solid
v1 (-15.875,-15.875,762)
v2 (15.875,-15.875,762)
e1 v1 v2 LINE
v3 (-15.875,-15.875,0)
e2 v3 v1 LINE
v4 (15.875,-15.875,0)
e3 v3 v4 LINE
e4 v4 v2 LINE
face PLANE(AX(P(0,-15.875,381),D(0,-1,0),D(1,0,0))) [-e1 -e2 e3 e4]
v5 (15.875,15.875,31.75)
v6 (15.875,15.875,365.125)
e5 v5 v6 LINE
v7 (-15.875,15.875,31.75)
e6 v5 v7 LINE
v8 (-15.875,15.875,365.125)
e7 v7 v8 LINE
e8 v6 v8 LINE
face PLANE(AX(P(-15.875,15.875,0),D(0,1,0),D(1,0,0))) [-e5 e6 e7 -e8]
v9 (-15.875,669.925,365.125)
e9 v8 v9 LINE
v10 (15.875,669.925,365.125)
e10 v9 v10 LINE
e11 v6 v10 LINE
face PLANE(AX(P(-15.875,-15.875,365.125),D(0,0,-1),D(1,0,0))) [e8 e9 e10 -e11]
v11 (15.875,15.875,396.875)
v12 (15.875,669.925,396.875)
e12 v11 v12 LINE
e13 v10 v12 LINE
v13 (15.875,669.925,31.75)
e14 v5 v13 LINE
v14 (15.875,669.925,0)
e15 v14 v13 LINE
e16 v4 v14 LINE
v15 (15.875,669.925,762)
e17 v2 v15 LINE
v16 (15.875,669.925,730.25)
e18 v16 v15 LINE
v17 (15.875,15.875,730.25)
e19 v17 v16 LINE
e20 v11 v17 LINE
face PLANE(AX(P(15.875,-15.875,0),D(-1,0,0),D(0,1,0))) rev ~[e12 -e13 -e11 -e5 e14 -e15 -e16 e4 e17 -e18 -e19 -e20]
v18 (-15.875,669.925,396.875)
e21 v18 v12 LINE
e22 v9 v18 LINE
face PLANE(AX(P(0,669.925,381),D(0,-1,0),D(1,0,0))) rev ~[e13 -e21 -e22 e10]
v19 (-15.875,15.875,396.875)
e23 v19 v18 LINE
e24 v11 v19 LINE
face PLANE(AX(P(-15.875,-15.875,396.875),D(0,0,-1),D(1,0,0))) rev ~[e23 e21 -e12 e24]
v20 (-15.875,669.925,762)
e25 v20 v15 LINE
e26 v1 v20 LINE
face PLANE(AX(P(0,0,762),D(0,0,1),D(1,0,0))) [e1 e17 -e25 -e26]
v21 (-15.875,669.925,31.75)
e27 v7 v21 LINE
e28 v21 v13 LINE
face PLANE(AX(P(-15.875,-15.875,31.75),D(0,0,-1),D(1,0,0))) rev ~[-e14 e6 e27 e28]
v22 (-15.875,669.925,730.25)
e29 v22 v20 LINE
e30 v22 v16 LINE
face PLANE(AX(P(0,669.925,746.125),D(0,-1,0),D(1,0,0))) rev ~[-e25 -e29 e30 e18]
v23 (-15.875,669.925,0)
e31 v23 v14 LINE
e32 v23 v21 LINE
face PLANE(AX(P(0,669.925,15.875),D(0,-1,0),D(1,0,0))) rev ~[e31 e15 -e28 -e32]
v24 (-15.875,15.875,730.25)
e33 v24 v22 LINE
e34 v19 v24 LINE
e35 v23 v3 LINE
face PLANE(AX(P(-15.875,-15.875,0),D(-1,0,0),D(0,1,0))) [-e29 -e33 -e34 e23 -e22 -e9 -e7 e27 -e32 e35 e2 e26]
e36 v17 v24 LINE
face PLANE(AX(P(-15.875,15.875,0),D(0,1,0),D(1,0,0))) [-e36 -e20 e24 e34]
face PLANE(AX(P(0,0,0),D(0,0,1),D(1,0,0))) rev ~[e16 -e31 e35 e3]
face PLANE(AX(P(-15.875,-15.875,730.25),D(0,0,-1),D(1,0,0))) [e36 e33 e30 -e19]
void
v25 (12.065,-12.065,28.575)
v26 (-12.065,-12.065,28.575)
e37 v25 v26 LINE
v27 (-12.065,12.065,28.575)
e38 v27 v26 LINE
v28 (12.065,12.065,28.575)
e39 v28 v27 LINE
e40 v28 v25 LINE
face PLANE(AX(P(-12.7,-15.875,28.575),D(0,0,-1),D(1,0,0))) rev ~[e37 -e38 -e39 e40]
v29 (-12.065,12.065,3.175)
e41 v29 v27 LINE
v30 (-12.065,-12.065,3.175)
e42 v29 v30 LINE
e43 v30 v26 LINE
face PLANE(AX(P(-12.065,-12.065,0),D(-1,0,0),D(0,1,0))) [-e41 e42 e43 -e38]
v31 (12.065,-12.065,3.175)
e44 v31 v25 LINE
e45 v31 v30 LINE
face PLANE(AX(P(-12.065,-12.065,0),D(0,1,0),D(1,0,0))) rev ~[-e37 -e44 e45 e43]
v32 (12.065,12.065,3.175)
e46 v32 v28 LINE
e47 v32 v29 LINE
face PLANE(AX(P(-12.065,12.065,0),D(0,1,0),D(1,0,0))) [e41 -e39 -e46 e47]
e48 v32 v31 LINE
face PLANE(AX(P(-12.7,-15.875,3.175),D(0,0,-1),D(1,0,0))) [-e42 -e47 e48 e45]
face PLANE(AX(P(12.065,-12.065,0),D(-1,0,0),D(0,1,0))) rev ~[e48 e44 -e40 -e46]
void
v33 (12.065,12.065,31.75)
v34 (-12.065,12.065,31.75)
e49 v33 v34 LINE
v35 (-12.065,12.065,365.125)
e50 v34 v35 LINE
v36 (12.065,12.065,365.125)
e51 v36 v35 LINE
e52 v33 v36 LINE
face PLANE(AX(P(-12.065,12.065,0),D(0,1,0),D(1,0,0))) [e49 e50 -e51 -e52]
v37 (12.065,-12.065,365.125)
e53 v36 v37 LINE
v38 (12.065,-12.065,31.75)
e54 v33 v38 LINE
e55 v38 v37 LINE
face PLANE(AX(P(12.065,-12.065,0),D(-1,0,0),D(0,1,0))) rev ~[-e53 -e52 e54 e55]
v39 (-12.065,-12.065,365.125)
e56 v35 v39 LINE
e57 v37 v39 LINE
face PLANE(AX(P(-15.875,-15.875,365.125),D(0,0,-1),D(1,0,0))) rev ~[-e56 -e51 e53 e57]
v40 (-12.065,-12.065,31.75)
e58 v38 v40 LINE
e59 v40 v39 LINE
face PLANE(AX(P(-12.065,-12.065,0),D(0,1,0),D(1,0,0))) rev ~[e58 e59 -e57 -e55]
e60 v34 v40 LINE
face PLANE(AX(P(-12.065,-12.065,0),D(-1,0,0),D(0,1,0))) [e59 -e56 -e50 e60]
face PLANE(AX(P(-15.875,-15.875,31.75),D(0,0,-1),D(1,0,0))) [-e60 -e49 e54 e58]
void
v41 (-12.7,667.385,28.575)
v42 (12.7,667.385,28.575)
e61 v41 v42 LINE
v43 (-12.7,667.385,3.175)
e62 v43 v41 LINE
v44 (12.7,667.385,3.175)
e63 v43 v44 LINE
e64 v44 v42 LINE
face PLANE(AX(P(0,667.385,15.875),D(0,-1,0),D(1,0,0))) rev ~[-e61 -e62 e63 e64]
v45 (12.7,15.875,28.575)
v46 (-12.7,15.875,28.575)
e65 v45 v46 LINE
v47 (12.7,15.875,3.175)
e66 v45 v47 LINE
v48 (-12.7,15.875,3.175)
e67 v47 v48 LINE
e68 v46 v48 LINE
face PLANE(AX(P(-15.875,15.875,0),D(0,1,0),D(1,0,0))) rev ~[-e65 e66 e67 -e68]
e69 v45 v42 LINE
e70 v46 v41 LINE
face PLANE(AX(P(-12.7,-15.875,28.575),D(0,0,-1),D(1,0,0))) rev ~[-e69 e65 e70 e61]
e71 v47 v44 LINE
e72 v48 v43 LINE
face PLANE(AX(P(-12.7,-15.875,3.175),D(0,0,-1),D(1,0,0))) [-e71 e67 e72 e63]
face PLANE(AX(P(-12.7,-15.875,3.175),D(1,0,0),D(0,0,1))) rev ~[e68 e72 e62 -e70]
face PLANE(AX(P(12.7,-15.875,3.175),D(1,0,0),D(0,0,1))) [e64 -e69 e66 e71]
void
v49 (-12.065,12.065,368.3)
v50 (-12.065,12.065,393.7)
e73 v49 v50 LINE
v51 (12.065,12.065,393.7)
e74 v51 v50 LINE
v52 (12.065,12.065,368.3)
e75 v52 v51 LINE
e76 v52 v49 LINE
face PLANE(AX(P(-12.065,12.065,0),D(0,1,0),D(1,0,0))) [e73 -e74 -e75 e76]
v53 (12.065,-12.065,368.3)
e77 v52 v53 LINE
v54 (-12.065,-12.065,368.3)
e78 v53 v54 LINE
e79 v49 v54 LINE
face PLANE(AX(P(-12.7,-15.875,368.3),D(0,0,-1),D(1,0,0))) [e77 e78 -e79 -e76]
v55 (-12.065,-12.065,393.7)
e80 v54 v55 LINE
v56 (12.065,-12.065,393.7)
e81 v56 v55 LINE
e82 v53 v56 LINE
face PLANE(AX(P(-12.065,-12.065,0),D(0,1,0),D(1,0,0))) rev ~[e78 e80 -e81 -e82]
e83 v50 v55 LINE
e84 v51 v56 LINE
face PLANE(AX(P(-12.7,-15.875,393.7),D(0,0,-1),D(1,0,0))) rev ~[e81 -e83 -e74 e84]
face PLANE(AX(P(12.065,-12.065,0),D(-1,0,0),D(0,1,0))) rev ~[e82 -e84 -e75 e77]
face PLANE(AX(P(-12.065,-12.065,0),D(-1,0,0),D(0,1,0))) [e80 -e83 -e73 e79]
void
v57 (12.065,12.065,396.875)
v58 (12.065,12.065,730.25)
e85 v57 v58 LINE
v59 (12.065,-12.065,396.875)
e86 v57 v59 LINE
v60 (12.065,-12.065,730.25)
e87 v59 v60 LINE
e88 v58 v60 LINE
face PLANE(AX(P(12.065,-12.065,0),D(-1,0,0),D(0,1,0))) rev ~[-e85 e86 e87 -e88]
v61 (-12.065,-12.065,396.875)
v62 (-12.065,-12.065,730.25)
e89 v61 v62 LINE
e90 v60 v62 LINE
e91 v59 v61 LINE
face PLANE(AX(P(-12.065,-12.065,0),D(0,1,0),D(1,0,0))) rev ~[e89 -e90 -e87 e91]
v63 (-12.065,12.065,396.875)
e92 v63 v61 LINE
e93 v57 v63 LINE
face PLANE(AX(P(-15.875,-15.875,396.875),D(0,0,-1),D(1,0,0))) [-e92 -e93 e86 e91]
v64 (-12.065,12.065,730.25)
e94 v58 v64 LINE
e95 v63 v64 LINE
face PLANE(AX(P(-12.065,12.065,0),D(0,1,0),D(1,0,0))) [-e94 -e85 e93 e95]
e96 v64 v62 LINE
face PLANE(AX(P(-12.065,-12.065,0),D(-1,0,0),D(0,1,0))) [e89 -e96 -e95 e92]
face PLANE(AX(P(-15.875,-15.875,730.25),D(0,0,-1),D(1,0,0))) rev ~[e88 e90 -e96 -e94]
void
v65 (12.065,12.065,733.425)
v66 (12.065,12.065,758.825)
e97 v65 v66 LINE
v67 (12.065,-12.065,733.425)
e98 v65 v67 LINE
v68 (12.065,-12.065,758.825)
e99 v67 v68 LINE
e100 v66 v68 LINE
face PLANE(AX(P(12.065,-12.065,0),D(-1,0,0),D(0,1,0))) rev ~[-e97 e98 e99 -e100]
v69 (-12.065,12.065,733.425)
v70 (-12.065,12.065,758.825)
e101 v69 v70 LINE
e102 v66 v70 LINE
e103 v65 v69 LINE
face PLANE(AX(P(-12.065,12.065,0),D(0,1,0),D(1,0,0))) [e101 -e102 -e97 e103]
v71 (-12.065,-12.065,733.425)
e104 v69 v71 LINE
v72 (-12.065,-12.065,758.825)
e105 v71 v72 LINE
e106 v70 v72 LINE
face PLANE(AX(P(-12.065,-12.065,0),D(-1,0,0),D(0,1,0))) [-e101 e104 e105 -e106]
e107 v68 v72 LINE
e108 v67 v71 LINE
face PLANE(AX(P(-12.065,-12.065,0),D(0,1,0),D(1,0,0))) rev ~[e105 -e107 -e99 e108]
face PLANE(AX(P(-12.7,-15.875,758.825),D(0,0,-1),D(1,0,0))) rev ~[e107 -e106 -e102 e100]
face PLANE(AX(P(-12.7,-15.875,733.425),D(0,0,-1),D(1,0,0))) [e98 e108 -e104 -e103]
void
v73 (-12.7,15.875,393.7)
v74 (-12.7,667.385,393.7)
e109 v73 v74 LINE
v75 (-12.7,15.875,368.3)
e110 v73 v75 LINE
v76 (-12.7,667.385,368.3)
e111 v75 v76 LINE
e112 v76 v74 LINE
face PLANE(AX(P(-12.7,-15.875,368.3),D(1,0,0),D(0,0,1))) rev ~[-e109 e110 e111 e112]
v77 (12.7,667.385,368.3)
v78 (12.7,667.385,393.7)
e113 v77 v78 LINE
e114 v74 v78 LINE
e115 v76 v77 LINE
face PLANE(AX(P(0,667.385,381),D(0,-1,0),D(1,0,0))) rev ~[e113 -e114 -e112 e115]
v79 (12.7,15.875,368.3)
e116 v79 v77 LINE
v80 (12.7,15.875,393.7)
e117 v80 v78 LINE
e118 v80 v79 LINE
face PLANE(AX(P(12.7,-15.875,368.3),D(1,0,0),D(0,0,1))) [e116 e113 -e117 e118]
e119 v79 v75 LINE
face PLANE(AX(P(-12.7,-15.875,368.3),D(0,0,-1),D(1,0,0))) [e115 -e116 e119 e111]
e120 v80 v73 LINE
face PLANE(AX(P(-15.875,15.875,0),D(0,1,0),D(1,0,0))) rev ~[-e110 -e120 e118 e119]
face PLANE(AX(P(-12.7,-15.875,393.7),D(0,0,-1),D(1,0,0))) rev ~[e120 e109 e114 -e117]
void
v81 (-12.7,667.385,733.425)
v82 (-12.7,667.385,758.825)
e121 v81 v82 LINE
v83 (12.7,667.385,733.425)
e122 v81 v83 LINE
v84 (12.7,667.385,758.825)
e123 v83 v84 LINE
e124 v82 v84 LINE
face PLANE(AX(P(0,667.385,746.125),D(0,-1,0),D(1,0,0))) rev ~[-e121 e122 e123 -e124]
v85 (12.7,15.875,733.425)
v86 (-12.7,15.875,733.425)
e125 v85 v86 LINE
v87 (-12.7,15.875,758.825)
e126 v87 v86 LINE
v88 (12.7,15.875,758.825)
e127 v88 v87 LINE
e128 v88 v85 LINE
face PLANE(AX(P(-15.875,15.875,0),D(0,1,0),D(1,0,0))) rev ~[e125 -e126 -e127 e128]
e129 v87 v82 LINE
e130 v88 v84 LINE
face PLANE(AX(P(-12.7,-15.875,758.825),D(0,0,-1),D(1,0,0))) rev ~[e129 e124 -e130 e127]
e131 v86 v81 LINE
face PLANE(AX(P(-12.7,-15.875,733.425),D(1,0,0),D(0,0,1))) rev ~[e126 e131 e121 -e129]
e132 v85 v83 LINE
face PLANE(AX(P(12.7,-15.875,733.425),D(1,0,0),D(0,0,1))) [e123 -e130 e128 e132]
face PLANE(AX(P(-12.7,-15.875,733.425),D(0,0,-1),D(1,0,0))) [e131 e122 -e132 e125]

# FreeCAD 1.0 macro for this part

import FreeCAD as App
import Part
import Sketcher

V = App.Vector
Q = App.Units.Quantity

doc = App.newDocument("Part")
body = doc.addObject("PartDesign::Body", "Body")

# Sketch on XY plane
sketch1 = doc.addObject("Sketcher::SketchObject", "Sketch")
body.addObject(sketch1)
sketch1.AttachmentSupport = (doc.XY_Plane, [""])
sketch1.MapMode = "FlatFace"
sketch1.addGeometry([
    Part.LineSegment(V(-16, 16, 0), V(-16, -16, 0)),  # 0
    Part.LineSegment(V(-16, -16, 0), V(16, -16, 0)),  # 1
    Part.LineSegment(V(16, -16, 0), V(16, 16, 0)),  # 2
    Part.LineSegment(V(16, 16, 0), V(-16, 16, 0)),  # 3
    Part.LineSegment(V(12, -12, 0), V(-12, -12, 0)),  # 4
    Part.LineSegment(V(-12, -12, 0), V(-12, 12, 0)),  # 5
    Part.LineSegment(V(-12, 12, 0), V(12, 12, 0)),  # 6
    Part.LineSegment(V(12, 12, 0), V(12, -12, 0)),  # 7
], False)
sketch1.addConstraint([
    Sketcher.Constraint("Coincident", 0, 2, 1, 1),
    Sketcher.Constraint("Coincident", 1, 2, 2, 1),
    Sketcher.Constraint("Coincident", 2, 2, 3, 1),
    Sketcher.Constraint("Coincident", 3, 2, 0, 1),
    Sketcher.Constraint("Coincident", 4, 2, 5, 1),
    Sketcher.Constraint("Coincident", 5, 2, 6, 1),
    Sketcher.Constraint("Coincident", 6, 2, 7, 1),
    Sketcher.Constraint("Coincident", 7, 2, 4, 1),
    Sketcher.Constraint("Vertical", 0),
    Sketcher.Constraint("Horizontal", 1),
    Sketcher.Constraint("Vertical", 2),
    Sketcher.Constraint("Horizontal", 3),
    Sketcher.Constraint("Horizontal", 4),
    Sketcher.Constraint("Vertical", 5),
    Sketcher.Constraint("Horizontal", 6),
    Sketcher.Constraint("Vertical", 7),
    Sketcher.Constraint("Symmetric", 0, 2, 2, 2, -1, 1),
    Sketcher.Constraint("Symmetric", 4, 2, 6, 2, -1, 1),
    Sketcher.Constraint("Equal", 3, 0),
    Sketcher.Constraint("Equal", 6, 5),
    Sketcher.Constraint("DistanceX", 1, 1, 1, 2, Q("1.25 in")),
    Sketcher.Constraint("DistanceX", 4, 2, 4, 1, Q("0.95 in")),
])
pad1 = doc.addObject("PartDesign::Pad", "Pad")
body.addObject(pad1)
pad1.Profile = sketch1
pad1.Length = Q("30 in")

# Sketch on XZ plane
sketch2 = doc.addObject("Sketcher::SketchObject", "Sketch001")
body.addObject(sketch2)
sketch2.AttachmentSupport = (doc.XZ_Plane, [""])
sketch2.MapMode = "FlatFace"
sketch2.AttachmentOffset = App.Placement(V(0, 0, 0.625 * 25.4), App.Rotation())
sketch2.addGeometry([
    Part.LineSegment(V(-16, 762, 0), V(-16, 730, 0)),  # 0
    Part.LineSegment(V(-16, 730, 0), V(16, 730, 0)),  # 1
    Part.LineSegment(V(16, 730, 0), V(16, 762, 0)),  # 2
    Part.LineSegment(V(16, 762, 0), V(-16, 762, 0)),  # 3
    Part.LineSegment(V(13, 733, 0), V(-13, 733, 0)),  # 4
    Part.LineSegment(V(-13, 733, 0), V(-13, 759, 0)),  # 5
    Part.LineSegment(V(-13, 759, 0), V(13, 759, 0)),  # 6
    Part.LineSegment(V(13, 759, 0), V(13, 733, 0)),  # 7
], False)
sketch2.addConstraint([
    Sketcher.Constraint("Coincident", 0, 2, 1, 1),
    Sketcher.Constraint("Coincident", 1, 2, 2, 1),
    Sketcher.Constraint("Coincident", 2, 2, 3, 1),
    Sketcher.Constraint("Coincident", 3, 2, 0, 1),
    Sketcher.Constraint("Coincident", 4, 2, 5, 1),
    Sketcher.Constraint("Coincident", 5, 2, 6, 1),
    Sketcher.Constraint("Coincident", 6, 2, 7, 1),
    Sketcher.Constraint("Coincident", 7, 2, 4, 1),
    Sketcher.Constraint("Vertical", 0),
    Sketcher.Constraint("Horizontal", 1),
    Sketcher.Constraint("Vertical", 2),
    Sketcher.Constraint("Horizontal", 3),
    Sketcher.Constraint("Horizontal", 4),
    Sketcher.Constraint("Vertical", 5),
    Sketcher.Constraint("Horizontal", 6),
    Sketcher.Constraint("Vertical", 7),
    Sketcher.Constraint("Equal", 3, 0),
    Sketcher.Constraint("Equal", 6, 5),
    Sketcher.Constraint("DistanceX", 4, 2, 4, 1, Q("1 in")),
    Sketcher.Constraint("DistanceY", -1, 1, 2, 2, Q("30 in")),
    Sketcher.Constraint("DistanceX", 1, 1, 1, 2, Q("1.25 in")),
    Sketcher.Constraint("DistanceX", 4, 2, -1, 1, Q("0.5 in")),
    Sketcher.Constraint("DistanceX", 0, 2, -1, 1, Q("0.625 in")),
    Sketcher.Constraint("DistanceY", -1, 1, 4, 2, Q("28.875 in")),
])
pad2 = doc.addObject("PartDesign::Pad", "Pad001")
body.addObject(pad2)
pad2.Profile = sketch2
pad2.Length = Q("27 in")
pad2.Reversed = True

# Sketch on XZ plane
sketch3 = doc.addObject("Sketcher::SketchObject", "Sketch002")
body.addObject(sketch3)
sketch3.AttachmentSupport = (doc.XZ_Plane, [""])
sketch3.MapMode = "FlatFace"
sketch3.AttachmentOffset = App.Placement(V(0, 0, 0.625 * 25.4), App.Rotation())
sketch3.addGeometry([
    Part.LineSegment(V(-13, 759, 0), V(-13, 733, 0)),
    Part.LineSegment(V(-13, 733, 0), V(13, 733, 0)),
    Part.LineSegment(V(13, 733, 0), V(13, 759, 0)),
    Part.LineSegment(V(13, 759, 0), V(-13, 759, 0)),
], False)
sketch3.addConstraint([
    Sketcher.Constraint("Coincident", 0, 2, 1, 1),
    Sketcher.Constraint("Coincident", 1, 2, 2, 1),
    Sketcher.Constraint("Coincident", 2, 2, 3, 1),
    Sketcher.Constraint("Coincident", 3, 2, 0, 1),
    Sketcher.Constraint("Vertical", 0),
    Sketcher.Constraint("Horizontal", 1),
    Sketcher.Constraint("Vertical", 2),
    Sketcher.Constraint("Horizontal", 3),
    Sketcher.Constraint("Equal", 3, 0),
    Sketcher.Constraint("DistanceX", 1, 1, 1, 2, Q("1 in")),
    Sketcher.Constraint("DistanceX", 0, 2, -1, 1, Q("0.5 in")),
    Sketcher.Constraint("DistanceY", -1, 1, 0, 2, Q("28.875 in")),
])
pad3 = doc.addObject("PartDesign::Pad", "Pad002")
body.addObject(pad3)
pad3.Profile = sketch3
pad3.Length = Q("0.1 in")
pad3.Reversed = True

# Sketch on XZ plane
sketch4 = doc.addObject("Sketcher::SketchObject", "Sketch003")
body.addObject(sketch4)
sketch4.AttachmentSupport = (doc.XZ_Plane, [""])
sketch4.MapMode = "FlatFace"
sketch4.AttachmentOffset = App.Placement(V(0, 0, -26.275 * 25.4), App.Rotation())
sketch4.addGeometry([
    Part.LineSegment(V(-13, 759, 0), V(-13, 733, 0)),
    Part.LineSegment(V(-13, 733, 0), V(13, 733, 0)),
    Part.LineSegment(V(13, 733, 0), V(13, 759, 0)),
    Part.LineSegment(V(13, 759, 0), V(-13, 759, 0)),
], False)
sketch4.addConstraint([
    Sketcher.Constraint("Coincident", 0, 2, 1, 1),
    Sketcher.Constraint("Coincident", 1, 2, 2, 1),
    Sketcher.Constraint("Coincident", 2, 2, 3, 1),
    Sketcher.Constraint("Coincident", 3, 2, 0, 1),
    Sketcher.Constraint("Vertical", 0),
    Sketcher.Constraint("Horizontal", 1),
    Sketcher.Constraint("Vertical", 2),
    Sketcher.Constraint("Horizontal", 3),
    Sketcher.Constraint("Equal", 3, 0),
    Sketcher.Constraint("DistanceX", 1, 1, 1, 2, Q("1 in")),
    Sketcher.Constraint("DistanceX", 0, 2, -1, 1, Q("0.5 in")),
    Sketcher.Constraint("DistanceY", -1, 1, 0, 2, Q("28.875 in")),
])
pad4 = doc.addObject("PartDesign::Pad", "Pad003")
body.addObject(pad4)
pad4.Profile = sketch4
pad4.Length = Q("0.1 in")
pad4.Reversed = True

# Sketch on XY plane
sketch5 = doc.addObject("Sketcher::SketchObject", "Sketch004")
body.addObject(sketch5)
sketch5.AttachmentSupport = (doc.XY_Plane, [""])
sketch5.MapMode = "FlatFace"
sketch5.addGeometry([
    Part.LineSegment(V(-12, 12, 0), V(-12, -12, 0)),
    Part.LineSegment(V(-12, -12, 0), V(12, -12, 0)),
    Part.LineSegment(V(12, -12, 0), V(12, 12, 0)),
    Part.LineSegment(V(12, 12, 0), V(-12, 12, 0)),
], False)
sketch5.addConstraint([
    Sketcher.Constraint("Coincident", 0, 2, 1, 1),
    Sketcher.Constraint("Coincident", 1, 2, 2, 1),
    Sketcher.Constraint("Coincident", 2, 2, 3, 1),
    Sketcher.Constraint("Coincident", 3, 2, 0, 1),
    Sketcher.Constraint("Vertical", 0),
    Sketcher.Constraint("Horizontal", 1),
    Sketcher.Constraint("Vertical", 2),
    Sketcher.Constraint("Horizontal", 3),
    Sketcher.Constraint("Symmetric", 0, 2, 2, 2, -1, 1),
    Sketcher.Constraint("Equal", 3, 0),
    Sketcher.Constraint("DistanceX", 1, 1, 1, 2, Q("0.95 in")),
])
pad5 = doc.addObject("PartDesign::Pad", "Pad004")
body.addObject(pad5)
pad5.Profile = sketch5
pad5.Length = Q("0.1 in")

# Sketch on XY plane
sketch6 = doc.addObject("Sketcher::SketchObject", "Sketch005")
body.addObject(sketch6)
sketch6.AttachmentSupport = (doc.XY_Plane, [""])
sketch6.MapMode = "FlatFace"
sketch6.AttachmentOffset = App.Placement(V(0, 0, 29.9 * 25.4), App.Rotation())
sketch6.addGeometry([
    Part.LineSegment(V(-12, 12, 0), V(-12, -12, 0)),
    Part.LineSegment(V(-12, -12, 0), V(12, -12, 0)),
    Part.LineSegment(V(12, -12, 0), V(12, 12, 0)),
    Part.LineSegment(V(12, 12, 0), V(-12, 12, 0)),
], False)
sketch6.addConstraint([
    Sketcher.Constraint("Coincident", 0, 2, 1, 1),
    Sketcher.Constraint("Coincident", 1, 2, 2, 1),
    Sketcher.Constraint("Coincident", 2, 2, 3, 1),
    Sketcher.Constraint("Coincident", 3, 2, 0, 1),
    Sketcher.Constraint("Vertical", 0),
    Sketcher.Constraint("Horizontal", 1),
    Sketcher.Constraint("Vertical", 2),
    Sketcher.Constraint("Horizontal", 3),
    Sketcher.Constraint("Symmetric", 0, 2, 2, 2, -1, 1),
    Sketcher.Constraint("Equal", 3, 0),
    Sketcher.Constraint("DistanceX", 1, 1, 1, 2, Q("0.95 in")),
])
pad6 = doc.addObject("PartDesign::Pad", "Pad005")
body.addObject(pad6)
pad6.Profile = sketch6
pad6.Length = Q("0.1 in")
doc.recompute()

linearpattern = doc.addObject("PartDesign::LinearPattern", "LinearPattern")
body.addObject(linearpattern)
linearpattern.Originals = [pad2, pad3, pad4]
linearpattern.Direction = (doc.Z_Axis, [""])
linearpattern.Mode = "offset"
linearpattern.Offset = Q("14.375 in")
linearpattern.Occurrences = 3
linearpattern.Reversed = True
body.Tip = linearpattern

doc.recompute()
